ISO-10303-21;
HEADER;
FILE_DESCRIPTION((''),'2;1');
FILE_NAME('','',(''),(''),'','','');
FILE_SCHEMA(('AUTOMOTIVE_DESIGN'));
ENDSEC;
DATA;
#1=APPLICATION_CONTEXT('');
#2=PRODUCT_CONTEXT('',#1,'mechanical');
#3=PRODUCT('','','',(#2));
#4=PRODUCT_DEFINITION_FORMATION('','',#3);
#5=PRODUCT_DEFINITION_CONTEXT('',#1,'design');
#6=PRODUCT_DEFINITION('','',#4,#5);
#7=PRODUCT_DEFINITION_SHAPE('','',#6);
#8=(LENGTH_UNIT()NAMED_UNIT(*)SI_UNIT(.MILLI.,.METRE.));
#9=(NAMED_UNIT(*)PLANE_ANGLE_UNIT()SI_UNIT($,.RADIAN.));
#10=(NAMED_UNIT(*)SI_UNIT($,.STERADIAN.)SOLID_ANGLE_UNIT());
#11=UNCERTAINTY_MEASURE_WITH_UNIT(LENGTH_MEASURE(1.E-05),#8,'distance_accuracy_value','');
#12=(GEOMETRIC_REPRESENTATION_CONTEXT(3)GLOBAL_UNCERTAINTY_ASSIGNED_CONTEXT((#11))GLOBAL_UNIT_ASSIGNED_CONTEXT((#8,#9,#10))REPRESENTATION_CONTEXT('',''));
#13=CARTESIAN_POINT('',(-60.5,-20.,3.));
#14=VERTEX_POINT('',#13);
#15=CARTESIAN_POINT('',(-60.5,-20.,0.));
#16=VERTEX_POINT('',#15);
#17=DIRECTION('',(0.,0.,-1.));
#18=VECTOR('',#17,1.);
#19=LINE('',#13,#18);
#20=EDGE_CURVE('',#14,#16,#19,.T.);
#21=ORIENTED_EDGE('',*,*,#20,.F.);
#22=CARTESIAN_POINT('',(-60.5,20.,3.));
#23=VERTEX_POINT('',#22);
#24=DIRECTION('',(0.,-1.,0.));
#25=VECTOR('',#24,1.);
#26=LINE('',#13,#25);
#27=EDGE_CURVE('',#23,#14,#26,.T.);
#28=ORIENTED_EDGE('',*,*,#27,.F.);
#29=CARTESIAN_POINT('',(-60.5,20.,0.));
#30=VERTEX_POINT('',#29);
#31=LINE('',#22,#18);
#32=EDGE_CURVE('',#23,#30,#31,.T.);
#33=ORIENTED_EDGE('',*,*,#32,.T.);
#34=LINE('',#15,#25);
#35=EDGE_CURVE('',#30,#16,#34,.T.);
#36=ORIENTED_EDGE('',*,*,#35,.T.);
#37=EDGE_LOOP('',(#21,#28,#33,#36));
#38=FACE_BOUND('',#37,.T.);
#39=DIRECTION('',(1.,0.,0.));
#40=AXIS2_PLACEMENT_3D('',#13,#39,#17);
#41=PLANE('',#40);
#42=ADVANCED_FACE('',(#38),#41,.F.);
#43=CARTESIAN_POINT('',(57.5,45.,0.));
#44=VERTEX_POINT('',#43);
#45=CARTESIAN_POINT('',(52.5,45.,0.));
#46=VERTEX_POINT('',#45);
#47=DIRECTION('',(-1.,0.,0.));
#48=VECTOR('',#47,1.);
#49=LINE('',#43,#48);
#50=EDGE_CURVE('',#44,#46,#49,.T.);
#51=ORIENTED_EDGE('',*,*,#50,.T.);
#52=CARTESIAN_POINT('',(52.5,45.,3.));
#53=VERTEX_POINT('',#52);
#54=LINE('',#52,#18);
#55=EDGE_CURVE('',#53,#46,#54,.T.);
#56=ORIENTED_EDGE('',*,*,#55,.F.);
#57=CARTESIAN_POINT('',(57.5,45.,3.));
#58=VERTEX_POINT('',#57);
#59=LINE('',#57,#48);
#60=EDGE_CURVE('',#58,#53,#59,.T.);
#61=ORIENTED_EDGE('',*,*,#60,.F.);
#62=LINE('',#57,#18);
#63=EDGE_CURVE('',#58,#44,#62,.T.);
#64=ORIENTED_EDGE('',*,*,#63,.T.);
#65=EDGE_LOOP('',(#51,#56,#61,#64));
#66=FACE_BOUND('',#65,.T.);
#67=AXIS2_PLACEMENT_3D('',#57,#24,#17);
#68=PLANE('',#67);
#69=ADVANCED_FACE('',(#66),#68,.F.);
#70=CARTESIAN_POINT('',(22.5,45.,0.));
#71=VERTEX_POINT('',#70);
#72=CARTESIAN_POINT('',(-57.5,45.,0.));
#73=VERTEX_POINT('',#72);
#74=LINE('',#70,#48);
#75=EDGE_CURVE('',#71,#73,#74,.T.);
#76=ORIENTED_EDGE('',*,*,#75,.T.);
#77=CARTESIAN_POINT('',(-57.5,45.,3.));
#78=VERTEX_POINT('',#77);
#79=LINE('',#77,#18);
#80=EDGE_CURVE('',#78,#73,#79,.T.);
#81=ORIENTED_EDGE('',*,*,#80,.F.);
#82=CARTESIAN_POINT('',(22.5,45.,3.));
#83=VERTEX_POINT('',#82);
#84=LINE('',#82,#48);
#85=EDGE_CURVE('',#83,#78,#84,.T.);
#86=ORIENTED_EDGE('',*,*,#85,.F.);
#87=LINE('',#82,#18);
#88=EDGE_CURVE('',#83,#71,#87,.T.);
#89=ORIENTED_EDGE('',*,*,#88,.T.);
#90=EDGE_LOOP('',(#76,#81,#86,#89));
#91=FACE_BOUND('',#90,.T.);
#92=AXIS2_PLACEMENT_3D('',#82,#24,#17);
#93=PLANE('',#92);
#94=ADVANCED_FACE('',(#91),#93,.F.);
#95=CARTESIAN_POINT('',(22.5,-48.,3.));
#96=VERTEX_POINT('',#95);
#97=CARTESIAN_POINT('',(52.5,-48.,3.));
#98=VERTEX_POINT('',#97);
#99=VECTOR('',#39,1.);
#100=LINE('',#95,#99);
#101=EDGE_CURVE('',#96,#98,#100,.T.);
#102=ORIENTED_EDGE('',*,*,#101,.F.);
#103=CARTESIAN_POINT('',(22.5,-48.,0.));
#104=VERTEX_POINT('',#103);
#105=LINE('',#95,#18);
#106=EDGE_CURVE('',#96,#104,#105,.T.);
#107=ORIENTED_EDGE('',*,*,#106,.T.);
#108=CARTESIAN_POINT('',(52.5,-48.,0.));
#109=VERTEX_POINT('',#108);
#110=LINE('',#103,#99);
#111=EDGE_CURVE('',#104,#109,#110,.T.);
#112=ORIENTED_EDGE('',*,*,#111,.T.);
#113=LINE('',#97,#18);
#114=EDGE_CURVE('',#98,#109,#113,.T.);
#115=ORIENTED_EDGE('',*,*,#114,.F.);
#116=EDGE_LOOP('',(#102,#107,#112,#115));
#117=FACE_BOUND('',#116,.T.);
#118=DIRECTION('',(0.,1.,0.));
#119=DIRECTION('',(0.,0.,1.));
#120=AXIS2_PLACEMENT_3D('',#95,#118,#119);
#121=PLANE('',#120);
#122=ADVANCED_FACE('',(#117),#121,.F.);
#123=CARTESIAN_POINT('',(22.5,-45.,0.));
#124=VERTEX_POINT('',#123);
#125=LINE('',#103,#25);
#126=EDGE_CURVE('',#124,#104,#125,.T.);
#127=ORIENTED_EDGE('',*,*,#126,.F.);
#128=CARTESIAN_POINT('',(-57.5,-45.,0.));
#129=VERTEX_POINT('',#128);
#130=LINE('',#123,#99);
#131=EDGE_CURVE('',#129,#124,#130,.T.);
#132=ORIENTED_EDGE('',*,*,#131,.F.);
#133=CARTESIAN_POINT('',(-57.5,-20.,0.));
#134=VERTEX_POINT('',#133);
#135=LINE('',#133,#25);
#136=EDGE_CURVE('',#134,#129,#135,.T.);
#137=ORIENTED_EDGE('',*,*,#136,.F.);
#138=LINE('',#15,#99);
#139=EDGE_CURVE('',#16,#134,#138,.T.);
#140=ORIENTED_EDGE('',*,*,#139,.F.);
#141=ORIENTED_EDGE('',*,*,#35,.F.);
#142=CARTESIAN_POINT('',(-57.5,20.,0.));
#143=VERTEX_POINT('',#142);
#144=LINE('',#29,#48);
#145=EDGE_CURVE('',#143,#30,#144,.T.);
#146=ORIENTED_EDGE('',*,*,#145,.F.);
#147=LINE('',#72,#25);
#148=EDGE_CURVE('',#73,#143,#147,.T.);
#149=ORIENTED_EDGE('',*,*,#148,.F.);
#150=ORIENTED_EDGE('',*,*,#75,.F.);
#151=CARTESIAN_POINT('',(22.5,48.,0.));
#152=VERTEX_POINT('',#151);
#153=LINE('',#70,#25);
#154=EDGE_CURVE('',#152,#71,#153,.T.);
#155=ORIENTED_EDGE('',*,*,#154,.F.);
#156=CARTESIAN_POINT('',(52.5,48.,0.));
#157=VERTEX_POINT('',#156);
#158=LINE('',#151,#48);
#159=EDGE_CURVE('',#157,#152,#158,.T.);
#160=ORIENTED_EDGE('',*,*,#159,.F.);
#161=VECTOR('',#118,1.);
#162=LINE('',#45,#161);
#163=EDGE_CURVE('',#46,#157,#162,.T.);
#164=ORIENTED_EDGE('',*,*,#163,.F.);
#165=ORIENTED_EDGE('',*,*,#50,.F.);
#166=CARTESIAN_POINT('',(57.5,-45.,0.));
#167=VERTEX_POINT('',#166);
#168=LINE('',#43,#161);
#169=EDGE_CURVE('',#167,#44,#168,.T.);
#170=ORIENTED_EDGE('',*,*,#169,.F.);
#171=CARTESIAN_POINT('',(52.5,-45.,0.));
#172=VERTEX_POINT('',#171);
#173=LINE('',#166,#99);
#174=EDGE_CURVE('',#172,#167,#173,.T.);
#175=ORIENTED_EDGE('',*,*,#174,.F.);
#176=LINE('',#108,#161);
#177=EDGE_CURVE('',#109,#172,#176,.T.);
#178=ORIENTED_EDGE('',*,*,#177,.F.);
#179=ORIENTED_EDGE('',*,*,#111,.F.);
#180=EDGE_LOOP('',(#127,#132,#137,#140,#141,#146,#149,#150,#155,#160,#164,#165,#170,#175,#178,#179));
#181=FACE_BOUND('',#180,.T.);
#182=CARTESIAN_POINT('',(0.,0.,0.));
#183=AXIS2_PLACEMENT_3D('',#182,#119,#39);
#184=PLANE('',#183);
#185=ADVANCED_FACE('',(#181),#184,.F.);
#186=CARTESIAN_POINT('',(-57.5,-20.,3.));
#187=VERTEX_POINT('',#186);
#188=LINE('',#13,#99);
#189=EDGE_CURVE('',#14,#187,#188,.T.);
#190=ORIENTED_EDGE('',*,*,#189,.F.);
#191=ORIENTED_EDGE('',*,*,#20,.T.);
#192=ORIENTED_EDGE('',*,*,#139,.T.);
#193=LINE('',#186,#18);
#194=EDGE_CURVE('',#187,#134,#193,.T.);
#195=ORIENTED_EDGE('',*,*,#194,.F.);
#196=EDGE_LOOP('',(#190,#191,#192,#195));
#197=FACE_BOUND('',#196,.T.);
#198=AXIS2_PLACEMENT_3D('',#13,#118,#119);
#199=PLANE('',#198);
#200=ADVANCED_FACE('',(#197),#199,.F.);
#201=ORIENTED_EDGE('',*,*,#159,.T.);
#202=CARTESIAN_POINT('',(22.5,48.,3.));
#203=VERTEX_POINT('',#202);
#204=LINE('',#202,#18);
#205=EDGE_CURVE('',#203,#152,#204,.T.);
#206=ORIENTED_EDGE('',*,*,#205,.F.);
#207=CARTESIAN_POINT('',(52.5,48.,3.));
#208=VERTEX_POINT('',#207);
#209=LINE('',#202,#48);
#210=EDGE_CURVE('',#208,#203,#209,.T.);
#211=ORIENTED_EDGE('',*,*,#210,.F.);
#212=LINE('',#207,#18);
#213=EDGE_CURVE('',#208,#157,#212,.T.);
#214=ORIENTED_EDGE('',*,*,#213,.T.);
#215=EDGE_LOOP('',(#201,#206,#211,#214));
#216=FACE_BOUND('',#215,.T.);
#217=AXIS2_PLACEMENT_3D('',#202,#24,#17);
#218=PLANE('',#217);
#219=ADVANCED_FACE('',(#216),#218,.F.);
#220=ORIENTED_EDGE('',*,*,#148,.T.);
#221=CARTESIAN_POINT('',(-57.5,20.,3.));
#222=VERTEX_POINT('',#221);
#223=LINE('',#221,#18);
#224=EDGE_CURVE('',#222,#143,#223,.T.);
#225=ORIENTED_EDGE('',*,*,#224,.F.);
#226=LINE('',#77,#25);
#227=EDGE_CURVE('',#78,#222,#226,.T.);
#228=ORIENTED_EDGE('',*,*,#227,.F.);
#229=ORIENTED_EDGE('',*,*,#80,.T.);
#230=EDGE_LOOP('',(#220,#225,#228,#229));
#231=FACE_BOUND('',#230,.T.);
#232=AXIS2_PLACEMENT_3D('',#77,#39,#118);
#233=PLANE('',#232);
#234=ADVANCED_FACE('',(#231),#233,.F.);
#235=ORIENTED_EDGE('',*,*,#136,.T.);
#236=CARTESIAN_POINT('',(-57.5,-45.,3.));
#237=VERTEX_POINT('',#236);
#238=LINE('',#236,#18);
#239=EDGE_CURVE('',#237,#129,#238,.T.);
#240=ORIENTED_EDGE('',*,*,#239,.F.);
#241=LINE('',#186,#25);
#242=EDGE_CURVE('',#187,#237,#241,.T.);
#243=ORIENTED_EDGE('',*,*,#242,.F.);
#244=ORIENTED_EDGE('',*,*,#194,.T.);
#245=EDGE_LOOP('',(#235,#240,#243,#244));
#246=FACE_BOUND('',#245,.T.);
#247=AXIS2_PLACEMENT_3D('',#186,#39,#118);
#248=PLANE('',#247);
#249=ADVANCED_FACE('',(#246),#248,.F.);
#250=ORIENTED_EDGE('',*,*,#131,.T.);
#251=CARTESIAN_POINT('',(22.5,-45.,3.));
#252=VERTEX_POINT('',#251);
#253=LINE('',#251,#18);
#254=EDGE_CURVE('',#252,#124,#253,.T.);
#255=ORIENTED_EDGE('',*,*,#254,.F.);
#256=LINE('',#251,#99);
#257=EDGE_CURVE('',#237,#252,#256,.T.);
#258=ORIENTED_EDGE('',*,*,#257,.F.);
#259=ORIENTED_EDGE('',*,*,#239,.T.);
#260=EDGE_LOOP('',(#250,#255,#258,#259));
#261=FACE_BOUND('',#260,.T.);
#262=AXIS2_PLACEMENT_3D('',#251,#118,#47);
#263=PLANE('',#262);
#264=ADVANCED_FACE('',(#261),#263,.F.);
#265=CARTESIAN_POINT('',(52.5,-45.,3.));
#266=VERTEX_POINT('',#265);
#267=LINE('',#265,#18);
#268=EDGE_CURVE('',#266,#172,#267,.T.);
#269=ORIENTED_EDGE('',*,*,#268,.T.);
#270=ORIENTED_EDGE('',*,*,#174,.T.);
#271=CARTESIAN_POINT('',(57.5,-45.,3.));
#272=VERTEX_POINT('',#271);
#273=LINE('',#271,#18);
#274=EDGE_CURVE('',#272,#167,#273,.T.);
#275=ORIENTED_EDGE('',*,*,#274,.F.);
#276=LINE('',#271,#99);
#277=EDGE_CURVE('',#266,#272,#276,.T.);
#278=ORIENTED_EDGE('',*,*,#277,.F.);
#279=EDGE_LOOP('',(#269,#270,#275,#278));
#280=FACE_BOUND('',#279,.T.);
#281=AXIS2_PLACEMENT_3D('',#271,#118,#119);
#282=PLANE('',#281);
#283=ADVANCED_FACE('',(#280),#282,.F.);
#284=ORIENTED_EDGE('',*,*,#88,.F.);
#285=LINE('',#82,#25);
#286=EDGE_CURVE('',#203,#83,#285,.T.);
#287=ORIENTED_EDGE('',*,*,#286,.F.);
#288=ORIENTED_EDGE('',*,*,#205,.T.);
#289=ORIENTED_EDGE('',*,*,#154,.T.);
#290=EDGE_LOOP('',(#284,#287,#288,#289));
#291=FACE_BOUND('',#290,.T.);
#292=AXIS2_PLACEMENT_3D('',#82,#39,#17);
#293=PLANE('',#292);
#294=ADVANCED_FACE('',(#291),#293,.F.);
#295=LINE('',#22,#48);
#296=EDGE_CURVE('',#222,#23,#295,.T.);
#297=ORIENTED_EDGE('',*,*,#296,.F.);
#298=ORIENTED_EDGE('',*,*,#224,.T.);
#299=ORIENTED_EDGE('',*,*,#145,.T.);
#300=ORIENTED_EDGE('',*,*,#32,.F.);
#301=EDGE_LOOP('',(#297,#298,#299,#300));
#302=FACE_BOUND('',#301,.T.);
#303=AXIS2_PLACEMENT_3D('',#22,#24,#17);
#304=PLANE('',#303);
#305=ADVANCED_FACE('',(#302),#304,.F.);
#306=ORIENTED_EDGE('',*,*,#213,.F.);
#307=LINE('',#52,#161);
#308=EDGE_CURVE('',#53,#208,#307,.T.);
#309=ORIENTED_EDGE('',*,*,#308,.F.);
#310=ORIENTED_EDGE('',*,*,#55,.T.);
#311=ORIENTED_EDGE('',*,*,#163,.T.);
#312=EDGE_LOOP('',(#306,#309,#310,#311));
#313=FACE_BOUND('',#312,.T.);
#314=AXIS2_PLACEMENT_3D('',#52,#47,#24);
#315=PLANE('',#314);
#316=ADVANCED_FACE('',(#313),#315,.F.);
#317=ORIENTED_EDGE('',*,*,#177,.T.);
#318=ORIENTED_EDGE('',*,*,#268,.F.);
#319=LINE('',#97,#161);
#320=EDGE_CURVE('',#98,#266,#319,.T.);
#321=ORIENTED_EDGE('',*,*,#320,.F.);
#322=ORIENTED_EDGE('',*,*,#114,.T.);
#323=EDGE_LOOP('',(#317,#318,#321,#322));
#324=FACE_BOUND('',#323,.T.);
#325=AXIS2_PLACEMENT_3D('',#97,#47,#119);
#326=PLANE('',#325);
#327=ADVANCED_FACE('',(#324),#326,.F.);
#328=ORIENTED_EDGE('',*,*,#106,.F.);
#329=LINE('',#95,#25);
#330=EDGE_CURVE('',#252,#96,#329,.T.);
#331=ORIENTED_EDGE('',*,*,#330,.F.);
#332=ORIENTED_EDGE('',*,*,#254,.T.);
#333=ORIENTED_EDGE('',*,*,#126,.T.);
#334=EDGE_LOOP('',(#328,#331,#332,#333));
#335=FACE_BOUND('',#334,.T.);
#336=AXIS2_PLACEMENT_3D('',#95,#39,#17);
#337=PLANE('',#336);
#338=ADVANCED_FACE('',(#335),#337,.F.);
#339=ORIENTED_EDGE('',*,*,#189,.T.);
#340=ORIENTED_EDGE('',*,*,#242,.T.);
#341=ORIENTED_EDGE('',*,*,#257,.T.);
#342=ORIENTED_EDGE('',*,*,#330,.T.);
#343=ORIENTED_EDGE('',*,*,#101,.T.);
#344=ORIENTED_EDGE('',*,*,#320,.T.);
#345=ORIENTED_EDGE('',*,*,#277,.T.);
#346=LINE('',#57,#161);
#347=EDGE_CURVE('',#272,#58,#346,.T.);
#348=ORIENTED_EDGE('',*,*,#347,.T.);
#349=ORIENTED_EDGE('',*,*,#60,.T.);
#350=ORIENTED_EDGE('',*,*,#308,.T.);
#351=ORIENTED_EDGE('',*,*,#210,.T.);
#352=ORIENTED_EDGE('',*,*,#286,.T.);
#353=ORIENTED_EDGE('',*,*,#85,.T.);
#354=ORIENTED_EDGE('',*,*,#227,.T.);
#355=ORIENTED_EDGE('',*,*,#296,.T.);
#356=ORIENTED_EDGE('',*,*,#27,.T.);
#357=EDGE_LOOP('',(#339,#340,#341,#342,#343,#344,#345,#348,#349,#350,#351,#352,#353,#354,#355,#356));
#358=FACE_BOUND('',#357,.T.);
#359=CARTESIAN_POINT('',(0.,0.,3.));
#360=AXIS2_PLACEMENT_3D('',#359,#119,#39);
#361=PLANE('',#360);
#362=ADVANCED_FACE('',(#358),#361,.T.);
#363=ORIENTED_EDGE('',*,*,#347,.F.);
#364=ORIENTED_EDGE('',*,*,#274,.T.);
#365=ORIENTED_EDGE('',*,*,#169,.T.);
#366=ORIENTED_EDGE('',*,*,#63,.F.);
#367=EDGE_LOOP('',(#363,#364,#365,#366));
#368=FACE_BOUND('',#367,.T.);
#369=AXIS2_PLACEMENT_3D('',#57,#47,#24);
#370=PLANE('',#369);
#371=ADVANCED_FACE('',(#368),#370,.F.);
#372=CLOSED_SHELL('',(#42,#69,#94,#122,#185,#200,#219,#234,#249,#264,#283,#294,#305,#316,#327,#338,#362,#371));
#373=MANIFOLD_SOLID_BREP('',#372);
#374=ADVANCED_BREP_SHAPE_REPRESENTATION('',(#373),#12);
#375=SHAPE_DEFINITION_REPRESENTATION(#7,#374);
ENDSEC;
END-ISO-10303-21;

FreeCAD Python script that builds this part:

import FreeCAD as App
import Part
import Sketcher
from FreeCAD import Vector

doc = App.newDocument("Part")
params = doc.addObject("Spreadsheet::Sheet", "Params")
for row, (alias, value) in enumerate([
    ("sketch1_width", "80 mm"),
    ("sketch1_width2", "30 mm"),
    ("sketch1_width3", "5 mm"),
    ("sketch1_width4", "3 mm"),
    ("sketch1_height", "25 mm"),
    ("pad1_length", "3 mm"),
], start=1):
    params.set(f"A{row}", alias)
    params.set(f"B{row}", "=" + value)
    params.setAlias(f"B{row}", alias)

body = doc.addObject("PartDesign::Body", "Body")

# Sketch on XY plane
sketch1 = body.newObject("Sketcher::SketchObject", "Sketch")
sketch1.AttachmentSupport = (doc.getObject("XY_Plane"), [""])
sketch1.MapMode = "FlatFace"
sketch1.addGeometry([
    Part.LineSegment(Vector(-57.5, -20, 0), Vector(-57.5, -45, 0)),  # 0
    Part.LineSegment(Vector(-57.5, -45, 0), Vector(22.5, -45, 0)),  # 1
    Part.LineSegment(Vector(22.5, -45, 0), Vector(22.5, -48, 0)),  # 2
    Part.LineSegment(Vector(22.5, -48, 0), Vector(52.5, -48, 0)),  # 3
    Part.LineSegment(Vector(52.5, -48, 0), Vector(52.5, -45, 0)),  # 4
    Part.LineSegment(Vector(52.5, -45, 0), Vector(57.5, -45, 0)),  # 5
    Part.LineSegment(Vector(57.5, -45, 0), Vector(57.5, 45, 0)),  # 6
    Part.LineSegment(Vector(57.5, 45, 0), Vector(52.5, 45, 0)),  # 7
    Part.LineSegment(Vector(52.5, 45, 0), Vector(52.5, 48, 0)),  # 8
    Part.LineSegment(Vector(52.5, 48, 0), Vector(22.5, 48, 0)),  # 9
    Part.LineSegment(Vector(22.5, 48, 0), Vector(22.5, 45, 0)),  # 10
    Part.LineSegment(Vector(22.5, 45, 0), Vector(-57.5, 45, 0)),  # 11
    Part.LineSegment(Vector(-57.5, 45, 0), Vector(-57.5, 20, 0)),  # 12
    Part.LineSegment(Vector(-57.5, 20, 0), Vector(-60.5, 20, 0)),  # 13
    Part.LineSegment(Vector(-60.5, 20, 0), Vector(-60.5, -20, 0)),  # 14
    Part.LineSegment(Vector(-60.5, -20, 0), Vector(-57.5, -20, 0)),  # 15
], False)
sketch1.addConstraint([
    Sketcher.Constraint("Coincident", 0, 2, 1, 1),
    Sketcher.Constraint("Coincident", 1, 2, 2, 1),
    Sketcher.Constraint("Coincident", 2, 2, 3, 1),
    Sketcher.Constraint("Coincident", 3, 2, 4, 1),
    Sketcher.Constraint("Coincident", 4, 2, 5, 1),
    Sketcher.Constraint("Coincident", 5, 2, 6, 1),
    Sketcher.Constraint("Coincident", 6, 2, 7, 1),
    Sketcher.Constraint("Coincident", 7, 2, 8, 1),
    Sketcher.Constraint("Coincident", 8, 2, 9, 1),
    Sketcher.Constraint("Coincident", 9, 2, 10, 1),
    Sketcher.Constraint("Coincident", 10, 2, 11, 1),
    Sketcher.Constraint("Coincident", 11, 2, 12, 1),
    Sketcher.Constraint("Coincident", 12, 2, 13, 1),
    Sketcher.Constraint("Coincident", 13, 2, 14, 1),
    Sketcher.Constraint("Coincident", 14, 2, 15, 1),
    Sketcher.Constraint("Coincident", 15, 2, 0, 1),
    Sketcher.Constraint("Vertical", 0),
    Sketcher.Constraint("Horizontal", 1),
    Sketcher.Constraint("Vertical", 2),
    Sketcher.Constraint("Horizontal", 3),
    Sketcher.Constraint("Vertical", 4),
    Sketcher.Constraint("Horizontal", 5),
    Sketcher.Constraint("Vertical", 6),
    Sketcher.Constraint("Horizontal", 7),
    Sketcher.Constraint("Vertical", 8),
    Sketcher.Constraint("Horizontal", 9),
    Sketcher.Constraint("Vertical", 10),
    Sketcher.Constraint("Horizontal", 11),
    Sketcher.Constraint("Vertical", 12),
    Sketcher.Constraint("Horizontal", 13),
    Sketcher.Constraint("Vertical", 14),
    Sketcher.Constraint("Horizontal", 15),
    Sketcher.Constraint("Symmetric", 0, 2, 6, 2, -1, 1),
    Sketcher.Constraint("Symmetric", 5, 2, 11, 2, -1, 1),
    Sketcher.Constraint("Symmetric", 4, 2, 7, 2, -1),
    Sketcher.Constraint("Symmetric", 2, 2, 9, 2, -1),
    Sketcher.Constraint("Equal", 15, 2),
    Sketcher.Constraint("Equal", 0, 12),
    Sketcher.Constraint("DistanceX", 1, 1, 1, 2, 80.0),
    Sketcher.Constraint("DistanceX", 3, 1, 3, 2, 30.0),
    Sketcher.Constraint("DistanceX", 5, 1, 5, 2, 5.0),
    Sketcher.Constraint("DistanceX", 13, 2, 13, 1, 3.0),
    Sketcher.Constraint("DistanceY", 0, 2, 0, 1, 25.0),
    Sketcher.Constraint("DistanceY", 6, 1, 6, 2, 90.0),
])
sketch1.setExpression("Constraints[38]", "Params.sketch1_width")
sketch1.setExpression("Constraints[39]", "Params.sketch1_width2")
sketch1.setExpression("Constraints[40]", "Params.sketch1_width3")
sketch1.setExpression("Constraints[41]", "Params.sketch1_width4")
sketch1.setExpression("Constraints[42]", "Params.sketch1_height")
pad1 = body.newObject("PartDesign::Pad", "Pad")
pad1.Profile = sketch1
pad1.setExpression("Length", "Params.pad1_length")

doc.recompute()
